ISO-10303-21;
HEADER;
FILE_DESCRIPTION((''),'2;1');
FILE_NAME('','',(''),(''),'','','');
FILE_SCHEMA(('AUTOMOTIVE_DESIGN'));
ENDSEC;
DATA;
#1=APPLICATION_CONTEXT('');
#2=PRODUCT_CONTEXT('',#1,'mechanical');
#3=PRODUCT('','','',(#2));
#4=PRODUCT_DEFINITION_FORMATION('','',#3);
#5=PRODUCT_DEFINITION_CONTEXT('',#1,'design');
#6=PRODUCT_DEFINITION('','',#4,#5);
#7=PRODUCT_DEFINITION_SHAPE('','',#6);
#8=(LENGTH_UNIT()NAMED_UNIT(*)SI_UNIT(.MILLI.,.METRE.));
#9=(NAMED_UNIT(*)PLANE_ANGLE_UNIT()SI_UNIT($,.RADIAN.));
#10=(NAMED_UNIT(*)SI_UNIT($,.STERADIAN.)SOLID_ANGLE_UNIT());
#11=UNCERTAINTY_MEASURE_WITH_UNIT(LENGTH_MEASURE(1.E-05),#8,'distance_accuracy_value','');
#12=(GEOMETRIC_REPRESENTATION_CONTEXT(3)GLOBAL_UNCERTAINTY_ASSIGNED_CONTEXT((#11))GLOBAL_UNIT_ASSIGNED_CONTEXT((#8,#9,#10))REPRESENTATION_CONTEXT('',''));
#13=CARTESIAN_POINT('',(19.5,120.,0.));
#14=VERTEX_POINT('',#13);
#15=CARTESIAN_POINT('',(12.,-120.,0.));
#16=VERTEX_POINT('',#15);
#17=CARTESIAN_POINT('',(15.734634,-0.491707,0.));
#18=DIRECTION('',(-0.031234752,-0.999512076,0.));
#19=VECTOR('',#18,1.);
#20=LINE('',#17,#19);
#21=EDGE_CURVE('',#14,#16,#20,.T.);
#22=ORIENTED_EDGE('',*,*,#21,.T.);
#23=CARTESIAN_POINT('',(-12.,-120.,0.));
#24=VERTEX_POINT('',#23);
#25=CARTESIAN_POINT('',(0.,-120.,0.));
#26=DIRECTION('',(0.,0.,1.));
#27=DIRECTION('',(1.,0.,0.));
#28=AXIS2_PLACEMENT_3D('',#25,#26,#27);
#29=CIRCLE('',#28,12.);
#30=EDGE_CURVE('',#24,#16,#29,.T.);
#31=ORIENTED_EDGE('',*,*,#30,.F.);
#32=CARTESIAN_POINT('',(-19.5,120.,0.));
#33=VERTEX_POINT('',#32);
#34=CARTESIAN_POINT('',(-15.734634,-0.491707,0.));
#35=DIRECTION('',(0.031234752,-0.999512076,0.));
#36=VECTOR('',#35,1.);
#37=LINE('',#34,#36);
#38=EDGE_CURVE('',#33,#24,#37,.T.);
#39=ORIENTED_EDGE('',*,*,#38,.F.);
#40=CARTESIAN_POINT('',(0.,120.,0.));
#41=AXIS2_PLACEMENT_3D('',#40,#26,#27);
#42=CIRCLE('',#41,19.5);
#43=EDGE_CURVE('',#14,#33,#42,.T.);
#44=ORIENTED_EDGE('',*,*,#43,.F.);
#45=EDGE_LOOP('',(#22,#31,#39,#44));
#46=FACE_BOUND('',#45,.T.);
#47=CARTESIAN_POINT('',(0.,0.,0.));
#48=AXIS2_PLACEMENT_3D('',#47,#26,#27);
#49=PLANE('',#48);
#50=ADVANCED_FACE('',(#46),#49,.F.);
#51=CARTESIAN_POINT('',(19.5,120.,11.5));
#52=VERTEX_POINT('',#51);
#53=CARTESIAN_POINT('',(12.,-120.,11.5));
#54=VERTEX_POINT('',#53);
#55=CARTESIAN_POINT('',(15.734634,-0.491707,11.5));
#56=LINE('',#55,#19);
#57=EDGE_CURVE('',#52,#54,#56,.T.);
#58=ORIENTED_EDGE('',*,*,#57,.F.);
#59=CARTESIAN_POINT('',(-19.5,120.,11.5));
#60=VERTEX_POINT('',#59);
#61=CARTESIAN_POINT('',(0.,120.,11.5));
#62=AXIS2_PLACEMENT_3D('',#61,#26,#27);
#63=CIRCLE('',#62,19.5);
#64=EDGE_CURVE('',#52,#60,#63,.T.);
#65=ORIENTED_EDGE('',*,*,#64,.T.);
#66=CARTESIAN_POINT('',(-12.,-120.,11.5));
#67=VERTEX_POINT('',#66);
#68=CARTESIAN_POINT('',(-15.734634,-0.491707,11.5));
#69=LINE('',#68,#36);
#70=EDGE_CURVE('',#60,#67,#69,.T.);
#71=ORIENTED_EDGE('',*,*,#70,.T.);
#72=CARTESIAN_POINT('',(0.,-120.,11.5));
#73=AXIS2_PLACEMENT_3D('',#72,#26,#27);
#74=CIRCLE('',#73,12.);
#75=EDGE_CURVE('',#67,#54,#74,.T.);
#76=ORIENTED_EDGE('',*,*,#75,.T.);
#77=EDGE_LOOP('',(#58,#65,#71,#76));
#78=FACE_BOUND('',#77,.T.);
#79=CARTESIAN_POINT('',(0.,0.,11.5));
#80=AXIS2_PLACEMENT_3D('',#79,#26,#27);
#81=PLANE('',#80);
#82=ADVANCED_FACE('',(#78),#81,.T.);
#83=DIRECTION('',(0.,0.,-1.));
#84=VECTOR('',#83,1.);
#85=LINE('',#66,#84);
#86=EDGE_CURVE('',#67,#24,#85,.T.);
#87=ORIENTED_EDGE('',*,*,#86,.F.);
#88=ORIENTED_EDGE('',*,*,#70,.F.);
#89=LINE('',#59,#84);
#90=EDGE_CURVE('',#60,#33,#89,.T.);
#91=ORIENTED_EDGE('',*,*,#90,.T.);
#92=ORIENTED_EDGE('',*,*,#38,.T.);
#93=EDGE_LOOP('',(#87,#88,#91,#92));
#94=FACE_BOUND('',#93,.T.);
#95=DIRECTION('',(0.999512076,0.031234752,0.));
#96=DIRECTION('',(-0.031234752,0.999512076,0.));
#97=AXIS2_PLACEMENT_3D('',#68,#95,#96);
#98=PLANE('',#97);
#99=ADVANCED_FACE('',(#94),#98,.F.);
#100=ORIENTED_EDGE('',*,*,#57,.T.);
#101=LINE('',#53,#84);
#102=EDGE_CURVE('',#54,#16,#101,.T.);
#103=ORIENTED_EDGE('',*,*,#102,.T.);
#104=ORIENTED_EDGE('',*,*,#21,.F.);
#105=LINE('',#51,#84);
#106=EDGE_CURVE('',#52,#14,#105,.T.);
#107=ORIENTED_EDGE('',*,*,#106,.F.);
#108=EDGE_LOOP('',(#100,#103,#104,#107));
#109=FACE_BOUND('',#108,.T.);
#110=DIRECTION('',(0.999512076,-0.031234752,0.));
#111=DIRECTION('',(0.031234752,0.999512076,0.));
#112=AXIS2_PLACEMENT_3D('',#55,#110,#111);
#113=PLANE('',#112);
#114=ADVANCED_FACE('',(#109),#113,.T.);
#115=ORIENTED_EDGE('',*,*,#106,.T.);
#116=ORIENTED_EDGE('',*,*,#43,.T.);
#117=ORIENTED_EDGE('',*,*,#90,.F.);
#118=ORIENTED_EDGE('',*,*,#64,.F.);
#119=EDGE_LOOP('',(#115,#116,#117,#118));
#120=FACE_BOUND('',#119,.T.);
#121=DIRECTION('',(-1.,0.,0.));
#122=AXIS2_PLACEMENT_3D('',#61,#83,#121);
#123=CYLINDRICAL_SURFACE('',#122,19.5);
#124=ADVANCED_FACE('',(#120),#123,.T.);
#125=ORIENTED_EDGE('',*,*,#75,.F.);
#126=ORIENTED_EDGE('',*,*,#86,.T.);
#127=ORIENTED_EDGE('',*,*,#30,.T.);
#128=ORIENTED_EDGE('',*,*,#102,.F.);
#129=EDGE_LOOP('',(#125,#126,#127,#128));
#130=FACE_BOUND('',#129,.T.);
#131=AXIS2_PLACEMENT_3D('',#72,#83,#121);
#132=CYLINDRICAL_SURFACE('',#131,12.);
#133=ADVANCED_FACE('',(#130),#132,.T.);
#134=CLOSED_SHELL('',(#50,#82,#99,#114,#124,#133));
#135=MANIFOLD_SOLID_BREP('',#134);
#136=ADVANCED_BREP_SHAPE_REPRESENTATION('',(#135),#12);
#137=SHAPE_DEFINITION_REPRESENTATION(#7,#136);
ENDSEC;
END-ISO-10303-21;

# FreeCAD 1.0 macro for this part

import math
import FreeCAD as App
import Part
import Sketcher

doc = App.newDocument("Part")
body = doc.addObject("PartDesign::Body", "Body")

# Sketch on XY plane
sketch1 = body.newObject("Sketcher::SketchObject", "Sketch")
sketch1.AttachmentSupport = (doc.getObject("XY_Plane"), [""])
sketch1.MapMode = "FlatFace"
sketch1.addGeometry([
    Part.LineSegment(App.Vector(12, -120, 0), App.Vector(19.5, 120, 0)),
    Part.ArcOfCircle(Part.Circle(App.Vector(0, 120, 0), App.Vector(0, 0, 1), 19.5), math.radians(0), math.radians(180)),
    Part.LineSegment(App.Vector(-19.5, 120, 0), App.Vector(-12, -120, 0)),
    Part.ArcOfCircle(Part.Circle(App.Vector(0, -120, 0), App.Vector(0, 0, 1), 12), math.radians(180), math.radians(360)),
], False)
sketch1.addConstraint([
    Sketcher.Constraint("Coincident", 0, 2, 1, 1),
    Sketcher.Constraint("Coincident", 1, 2, 2, 1),
    Sketcher.Constraint("Coincident", 2, 2, 3, 1),
    Sketcher.Constraint("Coincident", 3, 2, 0, 1),
    Sketcher.Constraint("Symmetric", 1, 3, 3, 3, -1, 1),
    Sketcher.Constraint("Symmetric", 0, 2, 1, 2, -2),
    Sketcher.Constraint("Horizontal", 1, 3, 0, 2),
    Sketcher.Constraint("Horizontal", 3, 3, 2, 2),
    Sketcher.Constraint("Horizontal", 2, 2, 3, 2),
    Sketcher.Constraint("Radius", 3, 12.0),
    Sketcher.Constraint("Radius", 1, 19.5),
    Sketcher.Constraint("DistanceY", -1, 1, 1, 3, 120.0),
])
pad1 = body.newObject("PartDesign::Pad", "Pad")
pad1.Profile = sketch1
pad1.Length = 11.5

doc.recompute()
